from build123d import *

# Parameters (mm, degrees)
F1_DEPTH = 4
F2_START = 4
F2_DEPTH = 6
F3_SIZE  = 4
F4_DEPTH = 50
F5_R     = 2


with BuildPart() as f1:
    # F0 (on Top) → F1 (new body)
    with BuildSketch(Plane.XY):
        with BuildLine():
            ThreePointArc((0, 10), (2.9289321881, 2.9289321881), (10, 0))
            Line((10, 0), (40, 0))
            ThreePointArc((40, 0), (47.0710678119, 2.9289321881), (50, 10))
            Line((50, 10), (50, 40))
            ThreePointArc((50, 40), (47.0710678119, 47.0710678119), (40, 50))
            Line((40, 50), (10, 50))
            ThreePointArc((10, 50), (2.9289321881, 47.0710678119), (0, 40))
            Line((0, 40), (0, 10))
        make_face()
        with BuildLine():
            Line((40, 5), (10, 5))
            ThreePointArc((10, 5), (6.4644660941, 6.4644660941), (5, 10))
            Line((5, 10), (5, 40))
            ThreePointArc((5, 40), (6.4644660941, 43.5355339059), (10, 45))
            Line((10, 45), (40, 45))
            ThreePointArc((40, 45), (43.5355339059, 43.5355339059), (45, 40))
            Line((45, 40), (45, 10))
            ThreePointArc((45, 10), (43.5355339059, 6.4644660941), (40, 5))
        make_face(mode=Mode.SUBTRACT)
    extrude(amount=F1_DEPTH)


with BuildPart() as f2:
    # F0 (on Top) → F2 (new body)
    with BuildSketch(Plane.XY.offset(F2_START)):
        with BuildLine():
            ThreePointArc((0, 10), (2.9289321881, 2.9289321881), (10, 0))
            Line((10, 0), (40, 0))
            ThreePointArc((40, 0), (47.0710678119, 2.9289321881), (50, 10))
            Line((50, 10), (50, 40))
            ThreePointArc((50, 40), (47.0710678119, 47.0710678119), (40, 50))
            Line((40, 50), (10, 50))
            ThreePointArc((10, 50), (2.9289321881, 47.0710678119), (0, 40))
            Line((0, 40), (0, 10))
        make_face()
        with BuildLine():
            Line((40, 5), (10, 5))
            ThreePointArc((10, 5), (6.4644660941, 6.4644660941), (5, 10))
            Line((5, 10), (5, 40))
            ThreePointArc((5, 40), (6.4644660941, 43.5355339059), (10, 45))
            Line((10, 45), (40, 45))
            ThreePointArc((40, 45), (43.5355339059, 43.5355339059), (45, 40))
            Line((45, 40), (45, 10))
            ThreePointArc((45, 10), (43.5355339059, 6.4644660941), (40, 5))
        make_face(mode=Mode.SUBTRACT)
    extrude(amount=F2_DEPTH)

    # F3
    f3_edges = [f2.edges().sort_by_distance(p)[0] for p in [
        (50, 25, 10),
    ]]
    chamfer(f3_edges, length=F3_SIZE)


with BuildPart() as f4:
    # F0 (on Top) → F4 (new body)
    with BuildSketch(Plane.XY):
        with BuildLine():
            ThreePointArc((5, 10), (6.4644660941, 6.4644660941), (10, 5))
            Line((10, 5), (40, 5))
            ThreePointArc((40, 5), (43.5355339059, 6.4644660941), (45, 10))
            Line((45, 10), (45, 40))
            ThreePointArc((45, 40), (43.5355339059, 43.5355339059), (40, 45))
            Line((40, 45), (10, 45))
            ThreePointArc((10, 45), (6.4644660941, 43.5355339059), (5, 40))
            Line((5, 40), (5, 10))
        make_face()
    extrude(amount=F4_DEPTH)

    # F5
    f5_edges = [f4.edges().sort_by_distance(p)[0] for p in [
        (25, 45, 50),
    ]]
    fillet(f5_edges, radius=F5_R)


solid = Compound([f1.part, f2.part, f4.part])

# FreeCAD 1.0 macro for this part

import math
import FreeCAD as App
import Part
import Sketcher
from FreeCAD import Vector


def edges_at(feature, points):
    """Names of the edges that pass closest to the given points."""
    edges = feature.Shape.Edges
    near = lambda p: min(range(len(edges)), key=lambda i: edges[i].distToShape(Part.Vertex(*p))[0])
    return sorted({f"Edge{near(p) + 1}" for p in points})

doc = App.newDocument("Part")
params = doc.addObject("Spreadsheet::Sheet", "Params")
for row, (alias, value) in enumerate([
    ("sketch1_radius", "10 mm"),
    ("sketch1_radius2", "5 mm"),
    ("sketch1_width", "30 mm"),
    ("pad1_length", "4 mm"),
    ("sketch2_radius", "10 mm"),
    ("sketch2_radius2", "5 mm"),
    ("sketch2_width", "30 mm"),
    ("pad2_length", "6 mm"),
    ("chamfer_size", "4 mm"),
    ("sketch3_radius", "5 mm"),
    ("sketch3_width", "30 mm"),
    ("pad3_length", "50 mm"),
    ("fillet_radius", "2 mm"),
], start=1):
    params.set(f"A{row}", alias)
    params.set(f"B{row}", "=" + value)
    params.setAlias(f"B{row}", alias)

body = doc.addObject("PartDesign::Body", "Body")

# Sketch on XY plane
sketch1 = body.newObject("Sketcher::SketchObject", "Sketch")
sketch1.AttachmentSupport = (doc.getObject("XY_Plane"), [""])
sketch1.MapMode = "FlatFace"
sketch1.addGeometry([
    Part.ArcOfCircle(Part.Circle(Vector(10, 10, 0), Vector(0, 0, 1), 10), math.radians(180), math.radians(270)),  # 0
    Part.LineSegment(Vector(10, 0, 0), Vector(40, 0, 0)),  # 1
    Part.ArcOfCircle(Part.Circle(Vector(40, 10, 0), Vector(0, 0, 1), 10), math.radians(-90), math.radians(0)),  # 2
    Part.LineSegment(Vector(50, 10, 0), Vector(50, 40, 0)),  # 3
    Part.ArcOfCircle(Part.Circle(Vector(40, 40, 0), Vector(0, 0, 1), 10), math.radians(0), math.radians(90)),  # 4
    Part.LineSegment(Vector(40, 50, 0), Vector(10, 50, 0)),  # 5
    Part.ArcOfCircle(Part.Circle(Vector(10, 40, 0), Vector(0, 0, 1), 10), math.radians(90), math.radians(180)),  # 6
    Part.LineSegment(Vector(0, 40, 0), Vector(0, 10, 0)),  # 7
    Part.ArcOfCircle(Part.Circle(Vector(40, 10, 0), Vector(0, 0, 1), 5), math.radians(-90), math.radians(0)),  # 8
    Part.LineSegment(Vector(40, 5, 0), Vector(10, 5, 0)),  # 9
    Part.ArcOfCircle(Part.Circle(Vector(10, 10, 0), Vector(0, 0, 1), 5), math.radians(180), math.radians(270)),  # 10
    Part.LineSegment(Vector(5, 10, 0), Vector(5, 40, 0)),  # 11
    Part.ArcOfCircle(Part.Circle(Vector(10, 40, 0), Vector(0, 0, 1), 5), math.radians(90), math.radians(180)),  # 12
    Part.LineSegment(Vector(10, 45, 0), Vector(40, 45, 0)),  # 13
    Part.ArcOfCircle(Part.Circle(Vector(40, 40, 0), Vector(0, 0, 1), 5), math.radians(0), math.radians(90)),  # 14
    Part.LineSegment(Vector(45, 40, 0), Vector(45, 10, 0)),  # 15
], False)
sketch1.addConstraint([
    Sketcher.Constraint("Tangent", 0, 2, 1, 1),
    Sketcher.Constraint("Tangent", 1, 2, 2, 1),
    Sketcher.Constraint("Tangent", 2, 2, 3, 1),
    Sketcher.Constraint("Tangent", 3, 2, 4, 1),
    Sketcher.Constraint("Tangent", 4, 2, 5, 1),
    Sketcher.Constraint("Tangent", 5, 2, 6, 1),
    Sketcher.Constraint("Tangent", 6, 2, 7, 1),
    Sketcher.Constraint("Tangent", 7, 2, 0, 1),
    Sketcher.Constraint("Tangent", 8, 1, 9, 1),
    Sketcher.Constraint("Tangent", 9, 2, 10, 2),
    Sketcher.Constraint("Tangent", 10, 1, 11, 1),
    Sketcher.Constraint("Tangent", 11, 2, 12, 2),
    Sketcher.Constraint("Tangent", 12, 1, 13, 1),
    Sketcher.Constraint("Tangent", 13, 2, 14, 2),
    Sketcher.Constraint("Tangent", 14, 1, 15, 1),
    Sketcher.Constraint("Tangent", 15, 2, 8, 2),
    Sketcher.Constraint("Horizontal", 1),
    Sketcher.Constraint("Vertical", 3),
    Sketcher.Constraint("Horizontal", 5),
    Sketcher.Constraint("Vertical", 7),
    Sketcher.Constraint("Horizontal", 9),
    Sketcher.Constraint("Vertical", 11),
    Sketcher.Constraint("Horizontal", 13),
    Sketcher.Constraint("Vertical", 15),
    Sketcher.Constraint("Coincident", 8, 3, 2, 3),
    Sketcher.Constraint("Coincident", 10, 3, 0, 3),
    Sketcher.Constraint("Coincident", 12, 3, 6, 3),
    Sketcher.Constraint("Equal", 0, 2),
    Sketcher.Constraint("Equal", 2, 4),
    Sketcher.Constraint("Equal", 4, 6),
    Sketcher.Constraint("Equal", 12, 14),
    Sketcher.Constraint("PointOnObject", 0, 2, -1),
    Sketcher.Constraint("PointOnObject", 6, 2, -2),
    Sketcher.Constraint("Equal", 13, 3),
    Sketcher.Constraint("Radius", 0, 10.0),
    Sketcher.Constraint("Radius", 8, 5.0),
    Sketcher.Constraint("DistanceX", 1, 1, 1, 2, 30.0),
])
sketch1.setExpression("Constraints[34]", "Params.sketch1_radius")
sketch1.setExpression("Constraints[35]", "Params.sketch1_radius2")
sketch1.setExpression("Constraints[36]", "Params.sketch1_width")
pad1 = body.newObject("PartDesign::Pad", "Pad")
pad1.Profile = sketch1
pad1.setExpression("Length", "Params.pad1_length")
body2 = doc.addObject("PartDesign::Body", "Body001")

# Sketch on XY plane
sketch2 = body2.newObject("Sketcher::SketchObject", "Sketch001")
sketch2.AttachmentSupport = (doc.getObject("XY_Plane001"), [""])
sketch2.MapMode = "FlatFace"
sketch2.AttachmentOffset = App.Placement(Vector(0, 0, 4), App.Rotation())
sketch2.addGeometry([
    Part.ArcOfCircle(Part.Circle(Vector(10, 10, 0), Vector(0, 0, 1), 10), math.radians(180), math.radians(270)),  # 0
    Part.LineSegment(Vector(10, 0, 0), Vector(40, 0, 0)),  # 1
    Part.ArcOfCircle(Part.Circle(Vector(40, 10, 0), Vector(0, 0, 1), 10), math.radians(-90), math.radians(0)),  # 2
    Part.LineSegment(Vector(50, 10, 0), Vector(50, 40, 0)),  # 3
    Part.ArcOfCircle(Part.Circle(Vector(40, 40, 0), Vector(0, 0, 1), 10), math.radians(0), math.radians(90)),  # 4
    Part.LineSegment(Vector(40, 50, 0), Vector(10, 50, 0)),  # 5
    Part.ArcOfCircle(Part.Circle(Vector(10, 40, 0), Vector(0, 0, 1), 10), math.radians(90), math.radians(180)),  # 6
    Part.LineSegment(Vector(0, 40, 0), Vector(0, 10, 0)),  # 7
    Part.ArcOfCircle(Part.Circle(Vector(40, 10, 0), Vector(0, 0, 1), 5), math.radians(-90), math.radians(0)),  # 8
    Part.LineSegment(Vector(40, 5, 0), Vector(10, 5, 0)),  # 9
    Part.ArcOfCircle(Part.Circle(Vector(10, 10, 0), Vector(0, 0, 1), 5), math.radians(180), math.radians(270)),  # 10
    Part.LineSegment(Vector(5, 10, 0), Vector(5, 40, 0)),  # 11
    Part.ArcOfCircle(Part.Circle(Vector(10, 40, 0), Vector(0, 0, 1), 5), math.radians(90), math.radians(180)),  # 12
    Part.LineSegment(Vector(10, 45, 0), Vector(40, 45, 0)),  # 13
    Part.ArcOfCircle(Part.Circle(Vector(40, 40, 0), Vector(0, 0, 1), 5), math.radians(0), math.radians(90)),  # 14
    Part.LineSegment(Vector(45, 40, 0), Vector(45, 10, 0)),  # 15
], False)
sketch2.addConstraint([
    Sketcher.Constraint("Tangent", 0, 2, 1, 1),
    Sketcher.Constraint("Tangent", 1, 2, 2, 1),
    Sketcher.Constraint("Tangent", 2, 2, 3, 1),
    Sketcher.Constraint("Tangent", 3, 2, 4, 1),
    Sketcher.Constraint("Tangent", 4, 2, 5, 1),
    Sketcher.Constraint("Tangent", 5, 2, 6, 1),
    Sketcher.Constraint("Tangent", 6, 2, 7, 1),
    Sketcher.Constraint("Tangent", 7, 2, 0, 1),
    Sketcher.Constraint("Tangent", 8, 1, 9, 1),
    Sketcher.Constraint("Tangent", 9, 2, 10, 2),
    Sketcher.Constraint("Tangent", 10, 1, 11, 1),
    Sketcher.Constraint("Tangent", 11, 2, 12, 2),
    Sketcher.Constraint("Tangent", 12, 1, 13, 1),
    Sketcher.Constraint("Tangent", 13, 2, 14, 2),
    Sketcher.Constraint("Tangent", 14, 1, 15, 1),
    Sketcher.Constraint("Tangent", 15, 2, 8, 2),
    Sketcher.Constraint("Horizontal", 1),
    Sketcher.Constraint("Vertical", 3),
    Sketcher.Constraint("Horizontal", 5),
    Sketcher.Constraint("Vertical", 7),
    Sketcher.Constraint("Horizontal", 9),
    Sketcher.Constraint("Vertical", 11),
    Sketcher.Constraint("Horizontal", 13),
    Sketcher.Constraint("Vertical", 15),
    Sketcher.Constraint("Coincident", 8, 3, 2, 3),
    Sketcher.Constraint("Coincident", 10, 3, 0, 3),
    Sketcher.Constraint("Coincident", 12, 3, 6, 3),
    Sketcher.Constraint("Equal", 0, 2),
    Sketcher.Constraint("Equal", 2, 4),
    Sketcher.Constraint("Equal", 4, 6),
    Sketcher.Constraint("Equal", 12, 14),
    Sketcher.Constraint("PointOnObject", 0, 2, -1),
    Sketcher.Constraint("PointOnObject", 6, 2, -2),
    Sketcher.Constraint("Equal", 13, 3),
    Sketcher.Constraint("Radius", 0, 10.0),
    Sketcher.Constraint("Radius", 8, 5.0),
    Sketcher.Constraint("DistanceX", 1, 1, 1, 2, 30.0),
])
sketch2.setExpression("Constraints[34]", "Params.sketch2_radius")
sketch2.setExpression("Constraints[35]", "Params.sketch2_radius2")
sketch2.setExpression("Constraints[36]", "Params.sketch2_width")
pad2 = body2.newObject("PartDesign::Pad", "Pad001")
pad2.Profile = sketch2
pad2.setExpression("Length", "Params.pad2_length")
doc.recompute()

chamfer = body2.newObject("PartDesign::Chamfer", "Chamfer")
chamfer.Base = (pad2, edges_at(pad2, [(50, 25, 10)]))
chamfer.setExpression("Size", "Params.chamfer_size")
body3 = doc.addObject("PartDesign::Body", "Body002")

# Sketch on XY plane
sketch3 = body3.newObject("Sketcher::SketchObject", "Sketch002")
sketch3.AttachmentSupport = (doc.getObject("XY_Plane002"), [""])
sketch3.MapMode = "FlatFace"
sketch3.addGeometry([
    Part.ArcOfCircle(Part.Circle(Vector(10, 10, 0), Vector(0, 0, 1), 5), math.radians(180), math.radians(270)),  # 0
    Part.LineSegment(Vector(10, 5, 0), Vector(40, 5, 0)),  # 1
    Part.ArcOfCircle(Part.Circle(Vector(40, 10, 0), Vector(0, 0, 1), 5), math.radians(-90), math.radians(0)),  # 2
    Part.LineSegment(Vector(45, 10, 0), Vector(45, 40, 0)),  # 3
    Part.ArcOfCircle(Part.Circle(Vector(40, 40, 0), Vector(0, 0, 1), 5), math.radians(0), math.radians(90)),  # 4
    Part.LineSegment(Vector(40, 45, 0), Vector(10, 45, 0)),  # 5
    Part.ArcOfCircle(Part.Circle(Vector(10, 40, 0), Vector(0, 0, 1), 5), math.radians(90), math.radians(180)),  # 6
    Part.LineSegment(Vector(5, 40, 0), Vector(5, 10, 0)),  # 7
], False)
sketch3.addConstraint([
    Sketcher.Constraint("Tangent", 0, 2, 1, 1),
    Sketcher.Constraint("Tangent", 1, 2, 2, 1),
    Sketcher.Constraint("Tangent", 2, 2, 3, 1),
    Sketcher.Constraint("Tangent", 3, 2, 4, 1),
    Sketcher.Constraint("Tangent", 4, 2, 5, 1),
    Sketcher.Constraint("Tangent", 5, 2, 6, 1),
    Sketcher.Constraint("Tangent", 6, 2, 7, 1),
    Sketcher.Constraint("Tangent", 7, 2, 0, 1),
    Sketcher.Constraint("Horizontal", 1),
    Sketcher.Constraint("Vertical", 3),
    Sketcher.Constraint("Horizontal", 5),
    Sketcher.Constraint("Vertical", 7),
    Sketcher.Constraint("Equal", 0, 2),
    Sketcher.Constraint("Equal", 2, 4),
    Sketcher.Constraint("Equal", 4, 6),
    Sketcher.Constraint("Equal", 5, 3),
    Sketcher.Constraint("Radius", 0, 5.0),
    Sketcher.Constraint("DistanceX", 1, 1, 1, 2, 30.0),
    Sketcher.Constraint("DistanceX", -1, 1, 0, 3, 10.0),
    Sketcher.Constraint("DistanceY", -1, 1, 0, 3, 10.0),
])
sketch3.setExpression("Constraints[16]", "Params.sketch3_radius")
sketch3.setExpression("Constraints[17]", "Params.sketch3_width")
pad3 = body3.newObject("PartDesign::Pad", "Pad002")
pad3.Profile = sketch3
pad3.setExpression("Length", "Params.pad3_length")
doc.recompute()

fillet = body3.newObject("PartDesign::Fillet", "Fillet")
fillet.Base = (pad3, edges_at(pad3, [(25, 45, 50)]))
fillet.setExpression("Radius", "Params.fillet_radius")

doc.recompute()
